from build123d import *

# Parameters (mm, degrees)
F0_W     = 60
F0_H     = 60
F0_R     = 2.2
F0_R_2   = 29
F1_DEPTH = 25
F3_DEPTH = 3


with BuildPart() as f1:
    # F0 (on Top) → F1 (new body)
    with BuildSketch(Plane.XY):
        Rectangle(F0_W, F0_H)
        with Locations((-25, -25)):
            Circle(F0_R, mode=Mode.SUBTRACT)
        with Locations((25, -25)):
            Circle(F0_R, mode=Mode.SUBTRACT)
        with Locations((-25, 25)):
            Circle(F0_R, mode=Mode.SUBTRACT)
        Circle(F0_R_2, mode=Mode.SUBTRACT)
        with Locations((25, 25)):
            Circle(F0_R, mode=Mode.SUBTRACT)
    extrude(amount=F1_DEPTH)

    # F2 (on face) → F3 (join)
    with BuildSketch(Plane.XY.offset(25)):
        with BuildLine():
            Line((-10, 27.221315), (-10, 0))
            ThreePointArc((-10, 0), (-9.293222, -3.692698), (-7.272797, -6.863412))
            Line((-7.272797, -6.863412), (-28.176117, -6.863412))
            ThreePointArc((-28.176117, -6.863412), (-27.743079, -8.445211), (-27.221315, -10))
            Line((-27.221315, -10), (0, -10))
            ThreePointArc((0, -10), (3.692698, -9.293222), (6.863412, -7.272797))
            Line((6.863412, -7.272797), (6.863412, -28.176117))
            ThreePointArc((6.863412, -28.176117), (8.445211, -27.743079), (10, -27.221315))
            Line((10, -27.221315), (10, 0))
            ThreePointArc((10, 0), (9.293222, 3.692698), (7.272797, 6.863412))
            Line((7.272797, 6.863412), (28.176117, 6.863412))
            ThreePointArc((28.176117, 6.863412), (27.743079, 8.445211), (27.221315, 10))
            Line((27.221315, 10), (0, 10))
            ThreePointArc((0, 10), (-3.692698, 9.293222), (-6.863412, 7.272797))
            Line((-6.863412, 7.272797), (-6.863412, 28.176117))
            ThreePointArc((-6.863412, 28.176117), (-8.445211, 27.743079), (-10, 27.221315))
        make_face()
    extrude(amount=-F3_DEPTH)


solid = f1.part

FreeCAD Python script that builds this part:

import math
import FreeCAD as App
import Part
import Sketcher
Q = App.Units.Quantity


def add_polygon(sketch, points):
    """Adds a closed chain of lines whose ends are joined by coincident constraints."""
    first, n = sketch.GeometryCount, len(points)
    for a, b in zip(points, points[1:] + points[:1]):
        sketch.addGeometry(Part.LineSegment(App.Vector(*a, 0), App.Vector(*b, 0)), False)
    for i in range(n):
        sketch.addConstraint(Sketcher.Constraint("Coincident", first + i, 2, first + (i + 1) % n, 1))

doc = App.newDocument("Part")
params = doc.addObject("Spreadsheet::Sheet", "Params")
for row, (alias, value) in enumerate([
    ("sketch1_diameter", "58 mm"),
    ("sketch1_diameter2", "4.4 mm"),
    ("sketch1_width", "60 mm"),
    ("pad1_length", "25 mm"),
    ("pad2_length", "3 mm"),
], start=1):
    params.set(f"A{row}", alias)
    params.set(f"B{row}", "=" + value)
    params.setAlias(f"B{row}", alias)

body = doc.addObject("PartDesign::Body", "Body")

# Sketch on XY plane
sketch1 = body.newObject("Sketcher::SketchObject", "Sketch")
sketch1.AttachmentSupport = (doc.getObject("XY_Plane"), [""])
sketch1.MapMode = "FlatFace"
add_polygon(sketch1, [(-30, 30), (-30, -30), (30, -30), (30, 30)])  # lines 0-3
sketch1.addGeometry(Part.Circle(App.Vector(-25, -25, 0), App.Vector(0, 0, 1), 2.2), False)  # 4
sketch1.addGeometry(Part.Circle(App.Vector(25, -25, 0), App.Vector(0, 0, 1), 2.2), False)  # 5
sketch1.addGeometry(Part.Circle(App.Vector(-25, 25, 0), App.Vector(0, 0, 1), 2.2), False)  # 6
sketch1.addGeometry(Part.Circle(App.Vector(0, 0, 0), App.Vector(0, 0, 1), 29), False)  # 7
sketch1.addGeometry(Part.Circle(App.Vector(25, 25, 0), App.Vector(0, 0, 1), 2.2), False)  # 8
sketch1.addConstraint([
    Sketcher.Constraint("Vertical", 0),
    Sketcher.Constraint("Horizontal", 1),
    Sketcher.Constraint("Vertical", 2),
    Sketcher.Constraint("Horizontal", 3),
    Sketcher.Constraint("Coincident", 7, 3, -1, 1),
    Sketcher.Constraint("Equal", 4, 5),
    Sketcher.Constraint("Equal", 5, 6),
    Sketcher.Constraint("Equal", 6, 8),
    Sketcher.Constraint("Symmetric", 5, 3, 6, 3, -1, 1),
    Sketcher.Constraint("Symmetric", 4, 3, 8, 3, -1, 1),
    Sketcher.Constraint("Symmetric", 0, 2, 2, 2, -1, 1),
    Sketcher.Constraint("Symmetric", 4, 3, 5, 3, -2),
    Sketcher.Constraint("Equal", 3, 0),
    Sketcher.Constraint("Diameter", 7, Q("58 mm")),
    Sketcher.Constraint("Diameter", 4, Q("4.4 mm")),
    Sketcher.Constraint("DistanceX", 1, 1, 1, 2, Q("60 mm")),
    Sketcher.Constraint("DistanceX", 4, 3, -1, 1, Q("25 mm")),
    Sketcher.Constraint("DistanceY", 4, 3, -1, 1, Q("25 mm")),
])
sketch1.setExpression("Constraints[17]", "Params.sketch1_diameter")
sketch1.setExpression("Constraints[18]", "Params.sketch1_diameter2")
sketch1.setExpression("Constraints[19]", "Params.sketch1_width")
pad1 = body.newObject("PartDesign::Pad", "Pad")
pad1.Profile = sketch1
pad1.setExpression("Length", "Params.pad1_length")

# Sketch on XY plane
sketch2 = body.newObject("Sketcher::SketchObject", "Sketch001")
sketch2.AttachmentSupport = (doc.getObject("XY_Plane"), [""])
sketch2.MapMode = "FlatFace"
sketch2.AttachmentOffset = App.Placement(App.Vector(0, 0, 25), App.Rotation())
sketch2.addGeometry([
    Part.LineSegment(App.Vector(-10, 27.221315, 0), App.Vector(-10, 0, 0)),  # 0
    Part.ArcOfCircle(Part.Circle(App.Vector(0.000004, 0.000002, 0), App.Vector(0, 0, 1), 10.000004), math.radians(-179.99999), math.radians(-136.658834)),  # 1
    Part.LineSegment(App.Vector(-7.272797, -6.863412, 0), App.Vector(-28.176117, -6.863412, 0)),  # 2
    Part.ArcOfCircle(Part.Circle(App.Vector(-0.000303, -0.000092, 0), App.Vector(0, 0, 1), 28.999684), math.radians(-166.309987), math.radians(-159.828692)),  # 3
    Part.LineSegment(App.Vector(-27.221315, -10, 0), App.Vector(0, -10, 0)),  # 4
    Part.ArcOfCircle(Part.Circle(App.Vector(-0.000002, 0.000004, 0), App.Vector(0, 0, 1), 10.000004), math.radians(-89.99999), math.radians(-46.658834)),  # 5
    Part.LineSegment(App.Vector(6.863412, -7.272797, 0), App.Vector(6.863412, -28.176117, 0)),  # 6
    Part.ArcOfCircle(Part.Circle(App.Vector(0.000092, -0.000303, 0), App.Vector(0, 0, 1), 28.999684), math.radians(-76.309987), math.radians(-69.828692)),  # 7
    Part.LineSegment(App.Vector(10, -27.221315, 0), App.Vector(10, 0, 0)),  # 8
    Part.ArcOfCircle(Part.Circle(App.Vector(-0.000004, -0.000002, 0), App.Vector(0, 0, 1), 10.000004), math.radians(0.00001), math.radians(43.341166)),  # 9
    Part.LineSegment(App.Vector(7.272797, 6.863412, 0), App.Vector(28.176117, 6.863412, 0)),  # 10
    Part.ArcOfCircle(Part.Circle(App.Vector(0.000303, 0.000092, 0), App.Vector(0, 0, 1), 28.999684), math.radians(13.690013), math.radians(20.171308)),  # 11
    Part.LineSegment(App.Vector(27.221315, 10, 0), App.Vector(0, 10, 0)),  # 12
    Part.ArcOfCircle(Part.Circle(App.Vector(0.000002, -0.000004, 0), App.Vector(0, 0, 1), 10.000004), math.radians(90.00001), math.radians(133.341166)),  # 13
    Part.LineSegment(App.Vector(-6.863412, 7.272797, 0), App.Vector(-6.863412, 28.176117, 0)),  # 14
    Part.ArcOfCircle(Part.Circle(App.Vector(-0.000092, 0.000303, 0), App.Vector(0, 0, 1), 28.999684), math.radians(103.690013), math.radians(110.171308)),  # 15
], False)
sketch2.addConstraint([
    Sketcher.Constraint("Tangent", 0, 2, 1, 1),
    Sketcher.Constraint("Coincident", 1, 2, 2, 1),
    Sketcher.Constraint("Coincident", 2, 2, 3, 1),
    Sketcher.Constraint("Coincident", 3, 2, 4, 1),
    Sketcher.Constraint("Tangent", 4, 2, 5, 1),
    Sketcher.Constraint("Coincident", 5, 2, 6, 1),
    Sketcher.Constraint("Coincident", 6, 2, 7, 1),
    Sketcher.Constraint("Coincident", 7, 2, 8, 1),
    Sketcher.Constraint("Tangent", 8, 2, 9, 1),
    Sketcher.Constraint("Coincident", 9, 2, 10, 1),
    Sketcher.Constraint("Coincident", 10, 2, 11, 1),
    Sketcher.Constraint("Coincident", 11, 2, 12, 1),
    Sketcher.Constraint("Tangent", 12, 2, 13, 1),
    Sketcher.Constraint("Coincident", 13, 2, 14, 1),
    Sketcher.Constraint("Coincident", 14, 2, 15, 1),
    Sketcher.Constraint("Coincident", 15, 2, 0, 1),
    Sketcher.Constraint("Vertical", 0),
    Sketcher.Constraint("Horizontal", 2),
    Sketcher.Constraint("Horizontal", 4),
    Sketcher.Constraint("Vertical", 6),
    Sketcher.Constraint("Vertical", 8),
    Sketcher.Constraint("Horizontal", 10),
    Sketcher.Constraint("Horizontal", 12),
    Sketcher.Constraint("Vertical", 14),
    Sketcher.Constraint("Coincident", 1, 3, -1, 1),
    Sketcher.Constraint("Coincident", 5, 3, -1, 1),
    Sketcher.Constraint("Coincident", 9, 3, -1, 1),
    Sketcher.Constraint("Coincident", 13, 3, -1, 1),
    Sketcher.Constraint("Equal", 1, 5),
    Sketcher.Constraint("Equal", 3, 7),
    Sketcher.Constraint("Equal", 5, 9),
    Sketcher.Constraint("Equal", 7, 11),
    Sketcher.Constraint("Equal", 9, 13),
    Sketcher.Constraint("Equal", 11, 15),
    Sketcher.Constraint("Symmetric", 3, 3, 11, 3, -1, 1),
    Sketcher.Constraint("Symmetric", 7, 3, 15, 3, -1, 1),
    Sketcher.Constraint("Equal", 2, 10),
    Sketcher.Constraint("Equal", 12, 0),
    Sketcher.Constraint("Equal", 10, 6),
    Sketcher.Constraint("Equal", 6, 14),
    Sketcher.Constraint("DistanceX", 0, 2, -1, 1, Q("10 mm")),
    Sketcher.Constraint("Radius", 3, Q("28.999684 mm")),
    Sketcher.Constraint("DistanceX", 2, 2, 2, 1, Q("20.90332 mm")),
    Sketcher.Constraint("DistanceX", 3, 3, 5, 3, Q("0.000301 mm")),
    Sketcher.Constraint("DistanceY", 7, 3, 9, 3, Q("0.000301 mm")),
    Sketcher.Constraint("DistanceX", 1, 2, 13, 3, Q("7.272799 mm")),
])
pad2 = body.newObject("PartDesign::Pad", "Pad001")
pad2.Profile = sketch2
pad2.setExpression("Length", "Params.pad2_length")
pad2.Reversed = True

doc.recompute()
